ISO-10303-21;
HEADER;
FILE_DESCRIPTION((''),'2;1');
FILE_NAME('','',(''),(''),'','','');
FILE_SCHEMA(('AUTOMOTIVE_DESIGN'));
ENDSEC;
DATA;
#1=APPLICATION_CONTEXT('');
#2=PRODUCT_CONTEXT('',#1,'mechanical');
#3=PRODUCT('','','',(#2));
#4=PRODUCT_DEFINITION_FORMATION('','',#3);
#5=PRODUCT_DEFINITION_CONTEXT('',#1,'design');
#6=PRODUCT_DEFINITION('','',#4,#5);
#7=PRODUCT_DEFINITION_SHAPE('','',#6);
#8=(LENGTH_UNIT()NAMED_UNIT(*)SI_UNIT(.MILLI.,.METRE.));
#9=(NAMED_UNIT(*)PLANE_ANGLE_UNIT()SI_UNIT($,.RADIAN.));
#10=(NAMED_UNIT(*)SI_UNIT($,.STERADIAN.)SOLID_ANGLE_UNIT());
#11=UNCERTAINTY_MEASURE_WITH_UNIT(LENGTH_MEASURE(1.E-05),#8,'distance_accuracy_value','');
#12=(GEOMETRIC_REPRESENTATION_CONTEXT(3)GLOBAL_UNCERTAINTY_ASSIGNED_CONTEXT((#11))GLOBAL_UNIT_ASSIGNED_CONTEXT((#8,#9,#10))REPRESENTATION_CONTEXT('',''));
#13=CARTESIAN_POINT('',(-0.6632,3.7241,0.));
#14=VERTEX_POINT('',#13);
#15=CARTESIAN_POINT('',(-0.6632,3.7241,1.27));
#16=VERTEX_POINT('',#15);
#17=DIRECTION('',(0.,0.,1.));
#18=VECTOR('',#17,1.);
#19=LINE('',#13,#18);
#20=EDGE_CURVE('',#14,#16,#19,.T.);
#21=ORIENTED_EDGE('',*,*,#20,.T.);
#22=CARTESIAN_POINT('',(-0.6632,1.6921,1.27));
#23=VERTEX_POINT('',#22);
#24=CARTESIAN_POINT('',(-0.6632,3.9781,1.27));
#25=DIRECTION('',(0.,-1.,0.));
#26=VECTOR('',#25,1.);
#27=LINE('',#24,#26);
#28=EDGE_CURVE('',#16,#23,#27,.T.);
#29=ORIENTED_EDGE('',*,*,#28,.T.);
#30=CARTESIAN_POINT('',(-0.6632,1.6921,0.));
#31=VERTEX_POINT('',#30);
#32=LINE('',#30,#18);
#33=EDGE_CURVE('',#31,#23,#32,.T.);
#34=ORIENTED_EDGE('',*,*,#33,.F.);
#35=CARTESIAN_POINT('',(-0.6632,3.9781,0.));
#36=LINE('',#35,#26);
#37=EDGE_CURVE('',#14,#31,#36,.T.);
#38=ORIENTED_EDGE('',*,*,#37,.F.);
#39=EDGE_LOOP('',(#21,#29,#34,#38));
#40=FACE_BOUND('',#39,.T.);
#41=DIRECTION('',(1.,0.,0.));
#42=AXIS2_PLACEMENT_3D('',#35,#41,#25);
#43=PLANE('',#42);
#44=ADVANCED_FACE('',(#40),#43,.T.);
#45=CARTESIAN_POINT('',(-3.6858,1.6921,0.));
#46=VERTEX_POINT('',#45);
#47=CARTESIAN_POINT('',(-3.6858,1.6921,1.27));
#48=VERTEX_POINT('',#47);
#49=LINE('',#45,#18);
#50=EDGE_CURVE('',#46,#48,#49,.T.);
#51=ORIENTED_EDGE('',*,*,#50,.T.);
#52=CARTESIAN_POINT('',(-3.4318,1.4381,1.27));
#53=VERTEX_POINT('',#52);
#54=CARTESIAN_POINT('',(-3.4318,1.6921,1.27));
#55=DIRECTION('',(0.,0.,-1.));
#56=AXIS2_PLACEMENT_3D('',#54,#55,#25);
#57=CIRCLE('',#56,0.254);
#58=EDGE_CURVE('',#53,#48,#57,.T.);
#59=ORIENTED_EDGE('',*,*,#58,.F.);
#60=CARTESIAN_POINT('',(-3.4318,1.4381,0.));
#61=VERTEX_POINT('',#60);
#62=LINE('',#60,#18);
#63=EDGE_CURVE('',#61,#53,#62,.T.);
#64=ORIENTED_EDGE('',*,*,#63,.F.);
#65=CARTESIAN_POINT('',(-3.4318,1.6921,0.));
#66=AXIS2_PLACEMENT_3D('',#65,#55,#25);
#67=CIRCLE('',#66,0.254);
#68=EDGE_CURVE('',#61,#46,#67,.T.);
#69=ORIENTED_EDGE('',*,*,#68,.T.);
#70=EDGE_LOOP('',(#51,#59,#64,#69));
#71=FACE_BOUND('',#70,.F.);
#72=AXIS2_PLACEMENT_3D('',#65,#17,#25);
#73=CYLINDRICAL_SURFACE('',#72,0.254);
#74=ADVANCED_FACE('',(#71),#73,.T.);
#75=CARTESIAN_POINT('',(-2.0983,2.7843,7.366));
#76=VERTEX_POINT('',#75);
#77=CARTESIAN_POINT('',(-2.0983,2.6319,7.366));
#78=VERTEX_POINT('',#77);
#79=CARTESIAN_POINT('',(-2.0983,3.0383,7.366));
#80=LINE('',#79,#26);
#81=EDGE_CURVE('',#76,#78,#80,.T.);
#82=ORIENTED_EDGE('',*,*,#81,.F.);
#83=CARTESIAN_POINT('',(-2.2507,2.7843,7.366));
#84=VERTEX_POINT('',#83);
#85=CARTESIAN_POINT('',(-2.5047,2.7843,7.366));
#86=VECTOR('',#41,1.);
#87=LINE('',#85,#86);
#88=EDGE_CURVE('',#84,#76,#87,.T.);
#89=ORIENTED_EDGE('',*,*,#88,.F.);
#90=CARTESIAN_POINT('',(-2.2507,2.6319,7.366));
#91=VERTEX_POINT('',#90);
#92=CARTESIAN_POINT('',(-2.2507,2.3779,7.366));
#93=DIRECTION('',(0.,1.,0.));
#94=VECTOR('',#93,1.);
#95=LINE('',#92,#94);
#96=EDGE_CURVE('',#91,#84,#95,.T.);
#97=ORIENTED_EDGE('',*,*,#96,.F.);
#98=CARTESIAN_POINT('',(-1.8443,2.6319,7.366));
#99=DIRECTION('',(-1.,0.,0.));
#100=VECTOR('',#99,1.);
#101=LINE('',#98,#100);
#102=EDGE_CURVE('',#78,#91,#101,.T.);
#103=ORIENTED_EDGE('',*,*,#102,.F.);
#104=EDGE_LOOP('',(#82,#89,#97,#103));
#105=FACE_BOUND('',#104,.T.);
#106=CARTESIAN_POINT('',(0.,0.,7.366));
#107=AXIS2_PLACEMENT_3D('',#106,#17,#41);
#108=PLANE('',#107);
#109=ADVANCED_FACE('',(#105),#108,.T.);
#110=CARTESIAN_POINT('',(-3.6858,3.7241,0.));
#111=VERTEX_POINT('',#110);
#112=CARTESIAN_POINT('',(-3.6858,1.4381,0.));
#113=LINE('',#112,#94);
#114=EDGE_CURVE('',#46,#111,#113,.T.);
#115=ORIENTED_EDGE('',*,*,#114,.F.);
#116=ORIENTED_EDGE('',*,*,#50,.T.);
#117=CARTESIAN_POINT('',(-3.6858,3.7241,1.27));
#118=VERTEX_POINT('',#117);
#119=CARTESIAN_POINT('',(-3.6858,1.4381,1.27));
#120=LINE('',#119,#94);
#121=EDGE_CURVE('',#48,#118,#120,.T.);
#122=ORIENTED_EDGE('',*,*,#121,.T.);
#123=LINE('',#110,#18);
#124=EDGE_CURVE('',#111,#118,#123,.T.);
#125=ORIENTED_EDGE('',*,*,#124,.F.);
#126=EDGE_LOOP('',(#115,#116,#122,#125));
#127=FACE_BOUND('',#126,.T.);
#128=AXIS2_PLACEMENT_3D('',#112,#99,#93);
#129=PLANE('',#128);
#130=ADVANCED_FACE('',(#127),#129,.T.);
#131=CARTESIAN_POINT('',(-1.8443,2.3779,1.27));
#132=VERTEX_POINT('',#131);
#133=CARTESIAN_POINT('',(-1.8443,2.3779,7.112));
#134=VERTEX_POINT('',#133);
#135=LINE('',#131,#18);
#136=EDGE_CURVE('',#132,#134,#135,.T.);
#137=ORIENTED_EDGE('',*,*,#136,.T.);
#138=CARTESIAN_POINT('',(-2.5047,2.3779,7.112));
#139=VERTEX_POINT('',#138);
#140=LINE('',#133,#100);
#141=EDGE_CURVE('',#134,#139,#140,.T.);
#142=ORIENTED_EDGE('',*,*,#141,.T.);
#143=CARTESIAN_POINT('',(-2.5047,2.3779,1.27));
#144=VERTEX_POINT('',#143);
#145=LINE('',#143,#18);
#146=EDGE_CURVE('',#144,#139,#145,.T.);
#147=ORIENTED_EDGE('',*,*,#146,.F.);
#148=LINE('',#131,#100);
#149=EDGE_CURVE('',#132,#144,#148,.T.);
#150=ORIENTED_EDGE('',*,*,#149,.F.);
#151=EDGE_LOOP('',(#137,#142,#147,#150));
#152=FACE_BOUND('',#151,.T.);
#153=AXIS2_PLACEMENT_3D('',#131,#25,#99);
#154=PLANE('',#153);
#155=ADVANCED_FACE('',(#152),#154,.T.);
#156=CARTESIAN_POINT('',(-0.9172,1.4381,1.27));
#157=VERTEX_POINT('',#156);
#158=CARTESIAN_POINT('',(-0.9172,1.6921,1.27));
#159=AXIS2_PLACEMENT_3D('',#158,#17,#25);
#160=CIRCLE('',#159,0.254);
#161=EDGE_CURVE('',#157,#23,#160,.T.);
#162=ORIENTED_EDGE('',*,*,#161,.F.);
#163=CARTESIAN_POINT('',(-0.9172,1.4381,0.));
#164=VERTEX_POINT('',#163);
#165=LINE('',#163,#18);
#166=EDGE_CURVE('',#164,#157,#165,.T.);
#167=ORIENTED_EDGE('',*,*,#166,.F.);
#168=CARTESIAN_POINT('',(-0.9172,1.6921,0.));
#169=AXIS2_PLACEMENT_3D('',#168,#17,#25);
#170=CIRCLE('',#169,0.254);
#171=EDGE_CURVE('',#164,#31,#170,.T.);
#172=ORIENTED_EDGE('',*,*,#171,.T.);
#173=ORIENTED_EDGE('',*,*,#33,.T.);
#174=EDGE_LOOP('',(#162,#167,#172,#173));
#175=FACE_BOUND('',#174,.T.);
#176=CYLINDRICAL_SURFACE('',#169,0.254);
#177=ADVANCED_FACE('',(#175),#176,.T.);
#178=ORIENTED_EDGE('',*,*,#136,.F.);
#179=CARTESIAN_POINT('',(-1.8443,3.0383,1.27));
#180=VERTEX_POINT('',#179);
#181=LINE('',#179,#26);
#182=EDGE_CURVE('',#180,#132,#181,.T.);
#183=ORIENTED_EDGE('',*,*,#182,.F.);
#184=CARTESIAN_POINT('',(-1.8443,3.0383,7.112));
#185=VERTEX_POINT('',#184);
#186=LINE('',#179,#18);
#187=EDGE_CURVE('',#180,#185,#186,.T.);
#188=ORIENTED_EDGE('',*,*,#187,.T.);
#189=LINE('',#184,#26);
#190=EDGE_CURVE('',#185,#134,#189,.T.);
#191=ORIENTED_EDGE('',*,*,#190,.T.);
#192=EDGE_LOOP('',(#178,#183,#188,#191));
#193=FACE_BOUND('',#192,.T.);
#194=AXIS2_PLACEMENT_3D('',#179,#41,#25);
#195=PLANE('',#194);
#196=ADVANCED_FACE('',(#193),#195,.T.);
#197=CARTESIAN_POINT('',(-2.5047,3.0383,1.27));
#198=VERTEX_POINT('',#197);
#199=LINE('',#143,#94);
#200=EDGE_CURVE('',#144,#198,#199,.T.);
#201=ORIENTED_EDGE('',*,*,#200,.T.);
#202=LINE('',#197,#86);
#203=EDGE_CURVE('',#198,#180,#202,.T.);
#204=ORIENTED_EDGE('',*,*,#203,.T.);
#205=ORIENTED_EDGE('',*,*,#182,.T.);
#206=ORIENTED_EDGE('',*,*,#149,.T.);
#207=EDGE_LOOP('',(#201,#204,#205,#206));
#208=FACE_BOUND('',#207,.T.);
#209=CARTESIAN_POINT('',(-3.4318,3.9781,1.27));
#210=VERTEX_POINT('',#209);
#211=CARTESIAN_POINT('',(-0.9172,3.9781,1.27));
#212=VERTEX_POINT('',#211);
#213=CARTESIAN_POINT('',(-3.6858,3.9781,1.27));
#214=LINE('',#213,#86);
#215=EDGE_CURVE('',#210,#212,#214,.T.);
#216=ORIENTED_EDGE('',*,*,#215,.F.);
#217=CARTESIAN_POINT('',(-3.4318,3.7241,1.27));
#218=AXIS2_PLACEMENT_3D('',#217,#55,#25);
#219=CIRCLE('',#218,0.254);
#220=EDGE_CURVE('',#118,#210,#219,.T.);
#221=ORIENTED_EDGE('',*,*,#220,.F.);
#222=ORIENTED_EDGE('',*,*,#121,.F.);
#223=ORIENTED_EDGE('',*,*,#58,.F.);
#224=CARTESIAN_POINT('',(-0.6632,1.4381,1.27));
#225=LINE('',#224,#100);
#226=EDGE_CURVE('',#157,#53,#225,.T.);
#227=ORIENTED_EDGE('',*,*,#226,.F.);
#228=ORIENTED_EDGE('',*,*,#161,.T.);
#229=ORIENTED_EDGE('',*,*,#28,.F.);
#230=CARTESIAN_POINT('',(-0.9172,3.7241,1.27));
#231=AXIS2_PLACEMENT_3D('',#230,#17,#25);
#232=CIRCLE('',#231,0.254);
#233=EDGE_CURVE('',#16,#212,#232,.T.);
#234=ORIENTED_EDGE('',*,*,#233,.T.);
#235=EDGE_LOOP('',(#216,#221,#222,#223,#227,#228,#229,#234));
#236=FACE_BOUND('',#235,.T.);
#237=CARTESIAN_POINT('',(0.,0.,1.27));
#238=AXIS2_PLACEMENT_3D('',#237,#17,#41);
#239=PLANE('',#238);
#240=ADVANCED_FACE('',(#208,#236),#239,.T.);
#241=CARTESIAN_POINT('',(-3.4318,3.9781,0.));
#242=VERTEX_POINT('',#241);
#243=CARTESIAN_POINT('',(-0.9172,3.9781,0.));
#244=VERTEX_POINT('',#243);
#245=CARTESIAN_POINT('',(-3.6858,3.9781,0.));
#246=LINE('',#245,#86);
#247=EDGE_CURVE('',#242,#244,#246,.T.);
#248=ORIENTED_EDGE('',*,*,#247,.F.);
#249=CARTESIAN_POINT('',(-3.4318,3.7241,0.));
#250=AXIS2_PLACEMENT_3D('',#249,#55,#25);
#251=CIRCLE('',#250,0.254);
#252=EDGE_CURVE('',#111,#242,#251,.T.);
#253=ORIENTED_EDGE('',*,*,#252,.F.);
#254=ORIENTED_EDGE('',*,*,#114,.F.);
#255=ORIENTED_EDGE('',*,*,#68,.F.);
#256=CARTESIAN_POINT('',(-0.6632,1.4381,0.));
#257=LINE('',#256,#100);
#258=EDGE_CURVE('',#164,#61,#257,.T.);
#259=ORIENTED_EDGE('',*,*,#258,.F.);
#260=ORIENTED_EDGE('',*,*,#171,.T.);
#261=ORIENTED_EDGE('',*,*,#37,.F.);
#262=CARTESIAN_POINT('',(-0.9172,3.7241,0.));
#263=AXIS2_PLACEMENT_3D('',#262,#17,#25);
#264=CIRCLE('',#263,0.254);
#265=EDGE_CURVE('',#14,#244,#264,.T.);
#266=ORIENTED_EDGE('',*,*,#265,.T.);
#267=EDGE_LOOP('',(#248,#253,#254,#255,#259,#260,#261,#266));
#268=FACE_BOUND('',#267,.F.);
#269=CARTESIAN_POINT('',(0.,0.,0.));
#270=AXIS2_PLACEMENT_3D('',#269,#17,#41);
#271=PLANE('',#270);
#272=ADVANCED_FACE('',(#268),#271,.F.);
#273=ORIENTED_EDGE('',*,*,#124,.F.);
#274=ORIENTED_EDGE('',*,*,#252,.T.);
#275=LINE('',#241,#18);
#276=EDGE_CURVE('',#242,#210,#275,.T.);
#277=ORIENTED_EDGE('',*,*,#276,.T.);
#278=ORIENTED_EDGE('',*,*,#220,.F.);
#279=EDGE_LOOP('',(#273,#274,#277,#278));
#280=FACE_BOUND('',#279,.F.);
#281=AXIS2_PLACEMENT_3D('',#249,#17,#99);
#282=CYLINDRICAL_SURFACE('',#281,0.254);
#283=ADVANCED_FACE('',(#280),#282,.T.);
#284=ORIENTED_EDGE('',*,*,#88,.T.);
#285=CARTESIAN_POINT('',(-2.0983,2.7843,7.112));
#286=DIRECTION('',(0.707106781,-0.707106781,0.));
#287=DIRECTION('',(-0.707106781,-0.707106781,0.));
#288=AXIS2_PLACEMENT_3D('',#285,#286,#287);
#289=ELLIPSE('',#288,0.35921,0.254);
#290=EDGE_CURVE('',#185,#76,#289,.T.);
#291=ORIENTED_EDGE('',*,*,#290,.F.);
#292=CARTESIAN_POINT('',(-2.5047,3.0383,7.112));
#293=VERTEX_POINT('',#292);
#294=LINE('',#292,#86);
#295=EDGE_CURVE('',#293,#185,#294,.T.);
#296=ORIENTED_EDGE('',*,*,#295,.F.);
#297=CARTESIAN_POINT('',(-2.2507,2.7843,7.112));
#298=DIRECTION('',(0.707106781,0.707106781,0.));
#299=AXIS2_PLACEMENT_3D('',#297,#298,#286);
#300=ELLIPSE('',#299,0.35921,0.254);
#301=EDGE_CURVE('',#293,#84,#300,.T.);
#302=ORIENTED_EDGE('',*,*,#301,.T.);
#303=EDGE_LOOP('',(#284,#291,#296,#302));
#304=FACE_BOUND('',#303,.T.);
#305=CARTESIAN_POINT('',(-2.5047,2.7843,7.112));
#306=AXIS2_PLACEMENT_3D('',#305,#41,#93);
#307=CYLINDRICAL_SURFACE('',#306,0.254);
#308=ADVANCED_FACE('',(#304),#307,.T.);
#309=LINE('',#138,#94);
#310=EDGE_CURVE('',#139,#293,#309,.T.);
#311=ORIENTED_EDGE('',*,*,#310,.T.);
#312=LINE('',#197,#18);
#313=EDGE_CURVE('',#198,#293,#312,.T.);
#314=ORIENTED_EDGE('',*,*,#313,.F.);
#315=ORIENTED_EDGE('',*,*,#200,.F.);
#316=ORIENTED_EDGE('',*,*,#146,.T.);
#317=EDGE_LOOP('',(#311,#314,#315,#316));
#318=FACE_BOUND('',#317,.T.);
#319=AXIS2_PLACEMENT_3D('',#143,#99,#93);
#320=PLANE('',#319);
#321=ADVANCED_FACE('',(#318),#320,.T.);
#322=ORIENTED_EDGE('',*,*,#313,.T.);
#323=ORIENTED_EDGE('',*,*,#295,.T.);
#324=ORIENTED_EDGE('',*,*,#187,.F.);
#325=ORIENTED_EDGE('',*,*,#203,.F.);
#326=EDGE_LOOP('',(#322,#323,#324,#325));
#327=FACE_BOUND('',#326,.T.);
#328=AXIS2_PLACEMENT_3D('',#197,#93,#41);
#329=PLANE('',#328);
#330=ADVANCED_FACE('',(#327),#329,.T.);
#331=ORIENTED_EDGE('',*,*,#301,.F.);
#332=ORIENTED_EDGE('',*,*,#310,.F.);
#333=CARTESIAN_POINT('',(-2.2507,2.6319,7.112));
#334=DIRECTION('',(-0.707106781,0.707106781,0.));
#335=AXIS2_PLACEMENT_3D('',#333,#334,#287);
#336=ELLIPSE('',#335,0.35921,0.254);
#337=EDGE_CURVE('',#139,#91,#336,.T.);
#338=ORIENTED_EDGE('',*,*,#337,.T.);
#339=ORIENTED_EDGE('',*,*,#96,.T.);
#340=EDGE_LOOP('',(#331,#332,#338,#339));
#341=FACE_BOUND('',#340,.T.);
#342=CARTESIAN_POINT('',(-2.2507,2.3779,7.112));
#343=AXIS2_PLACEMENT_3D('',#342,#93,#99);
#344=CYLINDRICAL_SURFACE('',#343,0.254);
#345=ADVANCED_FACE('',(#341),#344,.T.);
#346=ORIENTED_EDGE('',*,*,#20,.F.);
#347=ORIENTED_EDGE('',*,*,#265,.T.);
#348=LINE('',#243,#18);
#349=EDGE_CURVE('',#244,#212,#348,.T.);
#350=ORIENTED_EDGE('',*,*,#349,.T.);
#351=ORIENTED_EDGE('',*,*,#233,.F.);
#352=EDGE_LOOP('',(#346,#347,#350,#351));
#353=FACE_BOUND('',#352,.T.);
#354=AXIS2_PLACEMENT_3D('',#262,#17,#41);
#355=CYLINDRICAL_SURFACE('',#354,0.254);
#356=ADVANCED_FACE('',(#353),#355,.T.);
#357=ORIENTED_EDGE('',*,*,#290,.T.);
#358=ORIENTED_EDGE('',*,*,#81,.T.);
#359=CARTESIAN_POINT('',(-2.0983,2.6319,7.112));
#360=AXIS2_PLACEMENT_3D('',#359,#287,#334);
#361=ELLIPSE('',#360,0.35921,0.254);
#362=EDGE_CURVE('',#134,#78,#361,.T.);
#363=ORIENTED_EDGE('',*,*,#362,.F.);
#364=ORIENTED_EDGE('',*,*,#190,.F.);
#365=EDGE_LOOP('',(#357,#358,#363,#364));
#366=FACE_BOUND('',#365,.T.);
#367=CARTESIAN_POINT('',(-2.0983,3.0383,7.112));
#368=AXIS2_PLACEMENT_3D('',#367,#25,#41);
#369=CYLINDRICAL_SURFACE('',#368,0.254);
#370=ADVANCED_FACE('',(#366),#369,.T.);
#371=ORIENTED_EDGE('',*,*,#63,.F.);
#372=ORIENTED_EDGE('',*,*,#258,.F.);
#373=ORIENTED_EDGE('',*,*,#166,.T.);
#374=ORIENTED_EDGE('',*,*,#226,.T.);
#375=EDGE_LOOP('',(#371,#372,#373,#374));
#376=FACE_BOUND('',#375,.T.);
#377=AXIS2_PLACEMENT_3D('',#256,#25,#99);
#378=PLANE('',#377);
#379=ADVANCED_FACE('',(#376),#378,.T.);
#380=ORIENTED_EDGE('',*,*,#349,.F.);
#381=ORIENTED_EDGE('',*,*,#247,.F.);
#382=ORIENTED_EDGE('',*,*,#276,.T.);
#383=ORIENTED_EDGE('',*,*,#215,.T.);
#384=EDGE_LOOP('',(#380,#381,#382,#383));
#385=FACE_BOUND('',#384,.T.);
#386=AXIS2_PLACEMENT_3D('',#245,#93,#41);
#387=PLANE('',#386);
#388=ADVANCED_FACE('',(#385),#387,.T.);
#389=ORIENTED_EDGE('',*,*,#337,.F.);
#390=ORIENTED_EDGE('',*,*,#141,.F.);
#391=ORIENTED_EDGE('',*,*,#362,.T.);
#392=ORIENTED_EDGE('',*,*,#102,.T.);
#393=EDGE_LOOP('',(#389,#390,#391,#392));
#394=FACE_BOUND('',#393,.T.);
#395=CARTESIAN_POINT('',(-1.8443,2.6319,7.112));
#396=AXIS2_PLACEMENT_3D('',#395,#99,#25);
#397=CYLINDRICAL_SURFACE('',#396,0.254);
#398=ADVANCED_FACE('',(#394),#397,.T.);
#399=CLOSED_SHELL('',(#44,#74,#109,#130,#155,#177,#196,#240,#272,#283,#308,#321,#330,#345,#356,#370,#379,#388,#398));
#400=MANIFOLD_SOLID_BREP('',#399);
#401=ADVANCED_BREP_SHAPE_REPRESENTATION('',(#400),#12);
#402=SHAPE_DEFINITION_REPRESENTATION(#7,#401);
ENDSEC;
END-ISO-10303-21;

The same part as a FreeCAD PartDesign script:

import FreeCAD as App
import Part
import Sketcher
from FreeCAD import Vector
Q = App.Units.Quantity


def edges_at(feature, points):
    """Names of the edges that pass closest to the given points."""
    edges = feature.Shape.Edges
    near = lambda p: min(range(len(edges)), key=lambda i: edges[i].distToShape(Part.Vertex(*p))[0])
    return sorted({f"Edge{near(p) + 1}" for p in points})


def add_polygon(sketch, points):
    """Adds a closed chain of lines whose ends are joined by coincident constraints."""
    first, n = sketch.GeometryCount, len(points)
    for a, b in zip(points, points[1:] + points[:1]):
        sketch.addGeometry(Part.LineSegment(App.Vector(*a, 0), App.Vector(*b, 0)), False)
    for i in range(n):
        sketch.addConstraint(Sketcher.Constraint("Coincident", first + i, 2, first + (i + 1) % n, 1))

doc = App.newDocument("Part")
body = doc.addObject("PartDesign::Body", "Body")

# Sketch on XY plane
sketch1 = body.newObject("Sketcher::SketchObject", "Sketch")
sketch1.AttachmentSupport = (doc.getObject("XY_Plane"), [""])
sketch1.MapMode = "FlatFace"
add_polygon(sketch1, [(-3.7, 1.4), (-0.7, 1.4), (-0.7, 4), (-3.7, 4)])  # lines 0-3
sketch1.addConstraint([
    Sketcher.Constraint("Horizontal", 0),
    Sketcher.Constraint("Vertical", 1),
    Sketcher.Constraint("Horizontal", 2),
    Sketcher.Constraint("Vertical", 3),
    Sketcher.Constraint("DistanceY", 1, 1, 1, 2, Q("0.1 in")),
    Sketcher.Constraint("DistanceX", 0, 1, 0, 2, Q("0.119 in")),
    Sketcher.Constraint("DistanceX", 0, 2, -1, 1, Q("0.0261 in")),
    Sketcher.Constraint("DistanceY", -1, 1, 0, 2, 1.438),
])
pad1 = body.newObject("PartDesign::Pad", "Pad")
pad1.Profile = sketch1
pad1.Length = Q("0.05 in")

# Sketch on XY plane
sketch2 = body.newObject("Sketcher::SketchObject", "Sketch001")
sketch2.AttachmentSupport = (doc.getObject("XY_Plane"), [""])
sketch2.MapMode = "FlatFace"
sketch2.AttachmentOffset = App.Placement(Vector(0, 0, 0.05 * 25.4), App.Rotation())
add_polygon(sketch2, [(-1.8, 3), (-2.5, 3), (-2.5, 2.4), (-1.8, 2.4)])  # lines 0-3
sketch2.addConstraint([
    Sketcher.Constraint("Horizontal", 0),
    Sketcher.Constraint("Vertical", 1),
    Sketcher.Constraint("Horizontal", 2),
    Sketcher.Constraint("Vertical", 3),
    Sketcher.Constraint("Equal", 2, 1),
    Sketcher.Constraint("DistanceX", 0, 2, 0, 1, Q("0.026 in")),
    Sketcher.Constraint("DistanceX", 0, 2, -1, 1, Q("0.0986 in")),
    Sketcher.Constraint("DistanceY", -1, 1, 0, 2, 3.0383),
])
pad2 = body.newObject("PartDesign::Pad", "Pad001")
pad2.Profile = sketch2
pad2.Length = Q("0.24 in")
doc.recompute()

fillet = body.newObject("PartDesign::Fillet", "Fillet")
fillet.Base = (pad2, edges_at(pad2, [
    (-2.175, 2.378, 7.366),
    (-1.844, 2.708, 7.366),
    (-2.175, 3.038, 7.366),
    (-2.505, 2.708, 7.366),
]))
fillet.Radius = Q("0.01 in")
doc.recompute()

fillet2 = body.newObject("PartDesign::Fillet", "Fillet001")
fillet2.Base = (fillet, edges_at(fillet, [
    (-3.686, 1.438, 0.635),
    (-0.663, 1.438, 0.635),
    (-0.663, 3.978, 0.635),
    (-3.686, 3.978, 0.635),
]))
fillet2.Radius = Q("0.01 in")

doc.recompute()
